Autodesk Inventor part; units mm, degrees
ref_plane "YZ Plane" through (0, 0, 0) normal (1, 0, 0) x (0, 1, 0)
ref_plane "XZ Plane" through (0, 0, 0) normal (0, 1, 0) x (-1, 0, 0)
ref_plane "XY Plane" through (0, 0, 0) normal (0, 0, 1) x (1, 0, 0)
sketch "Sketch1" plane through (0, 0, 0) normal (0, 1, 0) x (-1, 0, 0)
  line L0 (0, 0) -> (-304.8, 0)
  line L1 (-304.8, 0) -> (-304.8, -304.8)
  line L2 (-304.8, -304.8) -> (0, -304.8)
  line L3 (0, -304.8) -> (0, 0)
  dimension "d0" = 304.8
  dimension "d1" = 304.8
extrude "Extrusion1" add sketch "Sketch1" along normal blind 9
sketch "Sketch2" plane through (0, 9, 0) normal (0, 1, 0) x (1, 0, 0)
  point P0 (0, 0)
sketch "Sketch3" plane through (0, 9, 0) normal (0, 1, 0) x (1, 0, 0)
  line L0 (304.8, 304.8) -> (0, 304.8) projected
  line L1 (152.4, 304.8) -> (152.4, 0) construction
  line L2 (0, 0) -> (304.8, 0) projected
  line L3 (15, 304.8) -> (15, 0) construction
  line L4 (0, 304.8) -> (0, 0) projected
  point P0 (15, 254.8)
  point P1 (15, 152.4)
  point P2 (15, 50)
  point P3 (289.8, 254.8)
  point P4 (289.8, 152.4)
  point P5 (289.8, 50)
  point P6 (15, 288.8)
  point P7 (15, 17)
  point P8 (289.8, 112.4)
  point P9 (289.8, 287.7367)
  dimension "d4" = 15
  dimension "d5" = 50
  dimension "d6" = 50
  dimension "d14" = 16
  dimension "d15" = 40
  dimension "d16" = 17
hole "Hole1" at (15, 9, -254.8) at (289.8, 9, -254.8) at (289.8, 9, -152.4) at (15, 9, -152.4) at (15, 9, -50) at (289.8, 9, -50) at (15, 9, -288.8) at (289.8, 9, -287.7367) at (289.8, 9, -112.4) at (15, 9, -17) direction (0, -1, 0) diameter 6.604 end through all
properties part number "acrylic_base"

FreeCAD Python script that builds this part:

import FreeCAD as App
import Part
import Sketcher
from FreeCAD import Vector
Q = App.Units.Quantity

doc = App.newDocument("Part")
body = doc.addObject("PartDesign::Body", "Body")

# Sketch on XZ plane
sketch1 = body.newObject("Sketcher::SketchObject", "Sketch")
sketch1.AttachmentSupport = (doc.getObject("XZ_Plane"), [""])
sketch1.MapMode = "FlatFace"
sketch1.addGeometry([
    Part.LineSegment(Vector(0, -304.8, 0), Vector(0, 0, 0)),
    Part.LineSegment(Vector(0, 0, 0), Vector(304.8, 0, 0)),
    Part.LineSegment(Vector(304.8, 0, 0), Vector(304.8, -304.8, 0)),
    Part.LineSegment(Vector(304.8, -304.8, 0), Vector(0, -304.8, 0)),
], False)
sketch1.addConstraint([
    Sketcher.Constraint("Coincident", 0, 2, 1, 1),
    Sketcher.Constraint("Coincident", 1, 2, 2, 1),
    Sketcher.Constraint("Coincident", 2, 2, 3, 1),
    Sketcher.Constraint("Coincident", 3, 2, 0, 1),
    Sketcher.Constraint("Vertical", 0),
    Sketcher.Constraint("Horizontal", 1),
    Sketcher.Constraint("Vertical", 2),
    Sketcher.Constraint("Horizontal", 3),
    Sketcher.Constraint("Coincident", 0, 2, -1, 1),
    Sketcher.Constraint("Equal", 3, 0),
    Sketcher.Constraint("DistanceX", 1, 1, 1, 2, Q("12 in")),
])
pad1 = body.newObject("PartDesign::Pad", "Pad")
pad1.Profile = sketch1
pad1.Length = 9
pad1.Reversed = True

# Sketch on XZ plane
sketch2 = body.newObject("Sketcher::SketchObject", "Sketch001")
sketch2.AttachmentSupport = (doc.getObject("XZ_Plane"), [""])
sketch2.MapMode = "FlatFace"
sketch2.AttachmentOffset = App.Placement(Vector(0, 0, -9), App.Rotation())
sketch2.addGeometry([
    Part.Circle(Vector(15, -254.8, 0), Vector(0, 0, 1), 3.302),  # 0
    Part.Circle(Vector(289.8, -254.8, 0), Vector(0, 0, 1), 3.302),  # 1
    Part.Circle(Vector(289.8, -152.4, 0), Vector(0, 0, 1), 3.302),  # 2
    Part.Circle(Vector(15, -152.4, 0), Vector(0, 0, 1), 3.302),  # 3
    Part.Circle(Vector(15, -50, 0), Vector(0, 0, 1), 3.302),  # 4
    Part.Circle(Vector(289.8, -50, 0), Vector(0, 0, 1), 3.302),  # 5
    Part.Circle(Vector(15, -288.8, 0), Vector(0, 0, 1), 3.302),  # 6
    Part.Circle(Vector(289.8, -287.7367, 0), Vector(0, 0, 1), 3.302),  # 7
    Part.Circle(Vector(289.8, -112.4, 0), Vector(0, 0, 1), 3.302),  # 8
    Part.Circle(Vector(15, -17, 0), Vector(0, 0, 1), 3.302),  # 9
], False)
sketch2.addConstraint([
    Sketcher.Constraint("Equal", 0, 1),
    Sketcher.Constraint("Equal", 1, 2),
    Sketcher.Constraint("Equal", 2, 3),
    Sketcher.Constraint("Equal", 3, 4),
    Sketcher.Constraint("Equal", 4, 5),
    Sketcher.Constraint("Equal", 5, 6),
    Sketcher.Constraint("Equal", 6, 7),
    Sketcher.Constraint("Equal", 7, 8),
    Sketcher.Constraint("Equal", 8, 9),
    Sketcher.Constraint("Horizontal", 0, 3, 1, 3),
    Sketcher.Constraint("Horizontal", 2, 3, 3, 3),
    Sketcher.Constraint("Horizontal", 4, 3, 5, 3),
    Sketcher.Constraint("Vertical", 1, 3, 2, 3),
    Sketcher.Constraint("Vertical", 0, 3, 3, 3),
    Sketcher.Constraint("Vertical", 3, 3, 4, 3),
    Sketcher.Constraint("Vertical", 2, 3, 5, 3),
    Sketcher.Constraint("Vertical", 4, 3, 6, 3),
    Sketcher.Constraint("Vertical", 5, 3, 7, 3),
    Sketcher.Constraint("Vertical", 7, 3, 8, 3),
    Sketcher.Constraint("Vertical", 6, 3, 9, 3),
    Sketcher.Constraint("Diameter", 0, Q("0.26 in")),
    Sketcher.Constraint("DistanceY", 2, 3, -1, 1, Q("6 in")),
    Sketcher.Constraint("DistanceY", 0, 3, 4, 3, Q("8.063 in")),
    Sketcher.Constraint("DistanceY", 0, 3, -1, 1, Q("10.0315 in")),
    Sketcher.Constraint("DistanceY", 8, 3, -1, 1, Q("4.4252 in")),
    Sketcher.Constraint("DistanceY", 9, 3, -1, 1, Q("0.6693 in")),
    Sketcher.Constraint("DistanceX", 0, 3, 1, 3, Q("10.8189 in")),
    Sketcher.Constraint("DistanceX", -1, 1, 0, 3, Q("15 mm")),
    Sketcher.Constraint("DistanceY", 6, 3, -1, 1, Q("288.8 mm")),
    Sketcher.Constraint("DistanceY", 7, 3, -1, 1, Q("287.7367 mm")),
])
doc.recompute()
hole = body.newObject("PartDesign::Hole", "Hole")
hole.Profile = sketch2
hole.ThreadType = "None"
hole.Diameter = Q("0.26 in")
hole.DepthType = "ThroughAll"
hole.Reversed = True

doc.recompute()
